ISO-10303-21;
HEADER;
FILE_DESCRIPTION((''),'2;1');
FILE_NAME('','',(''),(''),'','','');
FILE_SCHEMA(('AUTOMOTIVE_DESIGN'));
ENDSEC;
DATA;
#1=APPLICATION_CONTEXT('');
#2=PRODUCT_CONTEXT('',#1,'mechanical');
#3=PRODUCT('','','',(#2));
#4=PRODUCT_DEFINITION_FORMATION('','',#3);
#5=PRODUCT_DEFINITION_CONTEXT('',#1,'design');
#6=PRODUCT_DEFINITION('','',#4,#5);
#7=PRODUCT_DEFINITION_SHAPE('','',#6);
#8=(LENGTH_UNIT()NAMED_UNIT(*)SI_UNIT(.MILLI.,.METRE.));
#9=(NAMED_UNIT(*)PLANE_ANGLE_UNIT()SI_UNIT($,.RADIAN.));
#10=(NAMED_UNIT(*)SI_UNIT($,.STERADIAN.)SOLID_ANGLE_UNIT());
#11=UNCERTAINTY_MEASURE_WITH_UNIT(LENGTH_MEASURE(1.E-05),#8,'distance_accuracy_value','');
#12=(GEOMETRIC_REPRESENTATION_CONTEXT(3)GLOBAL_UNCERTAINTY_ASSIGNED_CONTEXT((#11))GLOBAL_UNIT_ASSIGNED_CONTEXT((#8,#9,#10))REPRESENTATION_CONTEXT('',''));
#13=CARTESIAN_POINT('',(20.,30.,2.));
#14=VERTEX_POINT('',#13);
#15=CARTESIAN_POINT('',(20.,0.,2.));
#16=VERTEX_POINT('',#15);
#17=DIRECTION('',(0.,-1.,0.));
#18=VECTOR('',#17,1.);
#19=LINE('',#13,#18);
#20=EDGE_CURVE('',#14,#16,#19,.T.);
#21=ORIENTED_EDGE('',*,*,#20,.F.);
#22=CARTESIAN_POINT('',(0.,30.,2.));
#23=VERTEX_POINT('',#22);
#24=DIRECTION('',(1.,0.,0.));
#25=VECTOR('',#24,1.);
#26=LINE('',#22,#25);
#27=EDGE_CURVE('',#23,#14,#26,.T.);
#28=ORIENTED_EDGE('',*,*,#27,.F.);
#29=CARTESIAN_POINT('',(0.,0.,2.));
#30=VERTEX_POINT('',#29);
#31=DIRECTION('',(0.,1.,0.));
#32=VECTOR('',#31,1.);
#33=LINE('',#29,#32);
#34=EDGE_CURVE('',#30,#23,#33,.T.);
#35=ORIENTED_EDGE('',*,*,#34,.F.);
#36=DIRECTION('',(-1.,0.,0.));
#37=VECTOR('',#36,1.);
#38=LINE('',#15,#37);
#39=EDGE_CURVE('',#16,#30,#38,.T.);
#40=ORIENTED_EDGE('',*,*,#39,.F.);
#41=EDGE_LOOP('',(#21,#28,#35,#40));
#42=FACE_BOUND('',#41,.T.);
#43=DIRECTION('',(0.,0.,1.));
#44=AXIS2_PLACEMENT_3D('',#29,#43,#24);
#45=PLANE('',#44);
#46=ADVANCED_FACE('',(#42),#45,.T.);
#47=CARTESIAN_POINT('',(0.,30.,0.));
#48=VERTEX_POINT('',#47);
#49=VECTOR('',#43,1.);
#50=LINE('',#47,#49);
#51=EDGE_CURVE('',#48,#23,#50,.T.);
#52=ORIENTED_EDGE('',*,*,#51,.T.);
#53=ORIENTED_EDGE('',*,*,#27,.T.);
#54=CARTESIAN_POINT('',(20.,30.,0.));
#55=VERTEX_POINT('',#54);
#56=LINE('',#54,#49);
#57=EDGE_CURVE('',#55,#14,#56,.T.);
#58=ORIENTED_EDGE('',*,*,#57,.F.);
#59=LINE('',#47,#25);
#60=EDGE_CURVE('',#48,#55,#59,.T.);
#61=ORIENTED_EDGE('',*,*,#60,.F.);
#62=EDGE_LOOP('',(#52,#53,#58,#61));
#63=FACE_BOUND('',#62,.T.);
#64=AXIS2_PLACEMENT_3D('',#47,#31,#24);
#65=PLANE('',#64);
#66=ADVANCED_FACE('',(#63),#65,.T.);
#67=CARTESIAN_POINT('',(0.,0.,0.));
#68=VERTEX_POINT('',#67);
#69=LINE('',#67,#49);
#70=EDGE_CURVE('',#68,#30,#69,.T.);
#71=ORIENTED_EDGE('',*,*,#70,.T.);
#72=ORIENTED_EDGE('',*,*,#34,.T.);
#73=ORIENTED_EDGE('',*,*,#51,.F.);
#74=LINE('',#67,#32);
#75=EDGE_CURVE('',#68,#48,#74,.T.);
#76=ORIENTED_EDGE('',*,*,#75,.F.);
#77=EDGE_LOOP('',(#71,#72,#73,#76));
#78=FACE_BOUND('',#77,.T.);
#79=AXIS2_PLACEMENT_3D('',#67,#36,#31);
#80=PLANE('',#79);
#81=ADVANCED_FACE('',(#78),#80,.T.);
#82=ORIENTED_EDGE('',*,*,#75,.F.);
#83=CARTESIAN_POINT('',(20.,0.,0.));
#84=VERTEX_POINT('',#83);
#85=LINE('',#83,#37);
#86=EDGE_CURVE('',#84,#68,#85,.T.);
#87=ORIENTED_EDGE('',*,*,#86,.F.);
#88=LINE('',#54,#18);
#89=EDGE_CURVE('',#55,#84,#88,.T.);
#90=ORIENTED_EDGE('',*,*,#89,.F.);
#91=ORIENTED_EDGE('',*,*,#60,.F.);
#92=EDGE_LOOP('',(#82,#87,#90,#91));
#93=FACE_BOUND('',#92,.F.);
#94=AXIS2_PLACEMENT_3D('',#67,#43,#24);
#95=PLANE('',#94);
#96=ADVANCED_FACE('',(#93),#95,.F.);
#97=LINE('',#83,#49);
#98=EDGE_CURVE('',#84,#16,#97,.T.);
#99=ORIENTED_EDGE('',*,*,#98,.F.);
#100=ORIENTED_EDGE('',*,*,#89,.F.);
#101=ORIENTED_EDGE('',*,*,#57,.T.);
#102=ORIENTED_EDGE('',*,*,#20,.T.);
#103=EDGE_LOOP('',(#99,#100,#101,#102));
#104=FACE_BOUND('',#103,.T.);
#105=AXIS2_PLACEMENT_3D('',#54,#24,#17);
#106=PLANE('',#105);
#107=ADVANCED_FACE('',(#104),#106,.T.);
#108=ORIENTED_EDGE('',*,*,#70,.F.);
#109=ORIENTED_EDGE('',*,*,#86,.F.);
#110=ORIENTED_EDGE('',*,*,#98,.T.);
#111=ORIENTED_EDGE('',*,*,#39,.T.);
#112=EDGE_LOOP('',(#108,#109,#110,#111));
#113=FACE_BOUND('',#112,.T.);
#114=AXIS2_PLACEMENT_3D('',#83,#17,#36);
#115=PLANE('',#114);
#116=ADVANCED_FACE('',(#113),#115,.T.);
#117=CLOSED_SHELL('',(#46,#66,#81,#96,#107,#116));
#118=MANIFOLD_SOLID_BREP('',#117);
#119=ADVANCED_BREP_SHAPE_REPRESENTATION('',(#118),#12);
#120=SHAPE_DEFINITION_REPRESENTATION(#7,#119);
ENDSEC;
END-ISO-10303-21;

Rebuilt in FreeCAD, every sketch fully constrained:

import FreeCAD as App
import Part
import Sketcher


def add_polygon(sketch, points):
    """Adds a closed chain of lines whose ends are joined by coincident constraints."""
    first, n = sketch.GeometryCount, len(points)
    for a, b in zip(points, points[1:] + points[:1]):
        sketch.addGeometry(Part.LineSegment(App.Vector(*a, 0), App.Vector(*b, 0)), False)
    for i in range(n):
        sketch.addConstraint(Sketcher.Constraint("Coincident", first + i, 2, first + (i + 1) % n, 1))

doc = App.newDocument("Part")
body = doc.addObject("PartDesign::Body", "Body")

sketch1 = body.newObject("Sketcher::SketchObject", "Sketch")
sketch1.AttachmentSupport = (doc.getObject("XY_Plane"), [""])
sketch1.MapMode = "FlatFace"
add_polygon(sketch1, [(0, 0), (20, 0), (20, 30), (0, 30)])
sketch1.addConstraint(Sketcher.Constraint("Horizontal", 0))
sketch1.addConstraint(Sketcher.Constraint("Vertical", 1))
sketch1.addConstraint(Sketcher.Constraint("Horizontal", 2))
sketch1.addConstraint(Sketcher.Constraint("Vertical", 3))
sketch1.addConstraint(Sketcher.Constraint("Coincident", 3, 2, -1, 1))
sketch1.addConstraint(Sketcher.Constraint("DistanceX", 0, 1, 0, 2, 20.0))
sketch1.addConstraint(Sketcher.Constraint("DistanceY", 1, 1, 1, 2, 30.0))
pad1 = body.newObject("PartDesign::Pad", "Pad")
pad1.Profile = sketch1
pad1.Length = 2

doc.recompute()
